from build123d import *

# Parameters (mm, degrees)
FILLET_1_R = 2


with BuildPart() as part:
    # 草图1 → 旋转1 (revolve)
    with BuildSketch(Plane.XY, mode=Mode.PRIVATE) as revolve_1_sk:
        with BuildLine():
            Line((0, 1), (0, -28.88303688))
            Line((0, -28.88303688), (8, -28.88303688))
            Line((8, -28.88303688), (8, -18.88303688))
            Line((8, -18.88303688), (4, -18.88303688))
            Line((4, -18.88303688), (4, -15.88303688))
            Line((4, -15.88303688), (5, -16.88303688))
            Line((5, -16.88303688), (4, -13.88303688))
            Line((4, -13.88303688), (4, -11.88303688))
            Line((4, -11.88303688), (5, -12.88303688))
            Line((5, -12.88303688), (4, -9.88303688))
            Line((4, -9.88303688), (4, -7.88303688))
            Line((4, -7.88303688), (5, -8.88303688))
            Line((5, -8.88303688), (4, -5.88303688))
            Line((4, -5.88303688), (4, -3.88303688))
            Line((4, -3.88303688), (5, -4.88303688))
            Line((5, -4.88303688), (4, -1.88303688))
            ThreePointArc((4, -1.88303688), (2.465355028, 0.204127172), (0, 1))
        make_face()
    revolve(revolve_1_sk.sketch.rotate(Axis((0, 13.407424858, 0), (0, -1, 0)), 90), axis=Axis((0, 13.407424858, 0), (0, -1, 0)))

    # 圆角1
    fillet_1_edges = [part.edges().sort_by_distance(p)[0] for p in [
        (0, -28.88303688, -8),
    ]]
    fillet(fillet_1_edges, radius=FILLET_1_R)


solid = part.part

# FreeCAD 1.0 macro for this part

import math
import FreeCAD as App
import Part
import Sketcher

V = App.Vector
Q = App.Units.Quantity


def edges_at(feature, points):
    """Names of the edges that pass closest to the given points."""
    edges = feature.Shape.Edges
    near = lambda p: min(range(len(edges)), key=lambda i: edges[i].distToShape(Part.Vertex(*p))[0])
    return sorted({f"Edge{near(p) + 1}" for p in points})

doc = App.newDocument("Part")
body = doc.addObject("PartDesign::Body", "Body")

# Sketch on XY plane
sketch1 = body.newObject("Sketcher::SketchObject", "Sketch")
sketch1.AttachmentSupport = (doc.getObject("XY_Plane"), [""])
sketch1.MapMode = "FlatFace"
sketch1.addGeometry(Part.LineSegment(V(0, 1, 0), V(0, -28.883037, 0)), False)
sketch1.addGeometry(Part.LineSegment(V(0, -28.883037, 0), V(8, -28.883037, 0)), False)
sketch1.addGeometry(Part.LineSegment(V(8, -28.883037, 0), V(8, -18.883037, 0)), False)
sketch1.addGeometry(Part.LineSegment(V(8, -18.883037, 0), V(4, -18.883037, 0)), False)
sketch1.addGeometry(Part.LineSegment(V(4, -18.883037, 0), V(4, -15.883037, 0)), False)
sketch1.addGeometry(Part.LineSegment(V(4, -15.883037, 0), V(5, -16.883037, 0)), False)
sketch1.addGeometry(Part.LineSegment(V(5, -16.883037, 0), V(4, -13.883037, 0)), False)
sketch1.addGeometry(Part.LineSegment(V(4, -13.883037, 0), V(4, -11.883037, 0)), False)
sketch1.addGeometry(Part.LineSegment(V(4, -11.883037, 0), V(5, -12.883037, 0)), False)
sketch1.addGeometry(Part.LineSegment(V(5, -12.883037, 0), V(4, -9.883037, 0)), False)
sketch1.addGeometry(Part.LineSegment(V(4, -9.883037, 0), V(4, -7.883037, 0)), False)
sketch1.addGeometry(Part.LineSegment(V(4, -7.883037, 0), V(5, -8.883037, 0)), False)
sketch1.addGeometry(Part.LineSegment(V(5, -8.883037, 0), V(4, -5.883037, 0)), False)
sketch1.addGeometry(Part.LineSegment(V(4, -5.883037, 0), V(4, -3.883037, 0)), False)
sketch1.addGeometry(Part.LineSegment(V(4, -3.883037, 0), V(5, -4.883037, 0)), False)
sketch1.addGeometry(Part.LineSegment(V(5, -4.883037, 0), V(4, -1.883037, 0)), False)
sketch1.addGeometry(Part.ArcOfCircle(Part.Circle(V(0, -3.21637, 0), V(0, 0, 1), 4.21637), math.radians(18.434949), math.radians(90)), False)
sketch1.addConstraint(Sketcher.Constraint("Coincident", 0, 2, 1, 1))
sketch1.addConstraint(Sketcher.Constraint("Coincident", 1, 2, 2, 1))
sketch1.addConstraint(Sketcher.Constraint("Coincident", 2, 2, 3, 1))
sketch1.addConstraint(Sketcher.Constraint("Coincident", 3, 2, 4, 1))
sketch1.addConstraint(Sketcher.Constraint("Coincident", 4, 2, 5, 1))
sketch1.addConstraint(Sketcher.Constraint("Coincident", 5, 2, 6, 1))
sketch1.addConstraint(Sketcher.Constraint("Coincident", 6, 2, 7, 1))
sketch1.addConstraint(Sketcher.Constraint("Coincident", 7, 2, 8, 1))
sketch1.addConstraint(Sketcher.Constraint("Coincident", 8, 2, 9, 1))
sketch1.addConstraint(Sketcher.Constraint("Coincident", 9, 2, 10, 1))
sketch1.addConstraint(Sketcher.Constraint("Coincident", 10, 2, 11, 1))
sketch1.addConstraint(Sketcher.Constraint("Coincident", 11, 2, 12, 1))
sketch1.addConstraint(Sketcher.Constraint("Coincident", 12, 2, 13, 1))
sketch1.addConstraint(Sketcher.Constraint("Coincident", 13, 2, 14, 1))
sketch1.addConstraint(Sketcher.Constraint("Coincident", 14, 2, 15, 1))
sketch1.addConstraint(Sketcher.Constraint("Tangent", 15, 2, 16, 1))
sketch1.addConstraint(Sketcher.Constraint("Coincident", 16, 2, 0, 1))
sketch1.addConstraint(Sketcher.Constraint("Vertical", 0))
sketch1.addConstraint(Sketcher.Constraint("Horizontal", 1))
sketch1.addConstraint(Sketcher.Constraint("Vertical", 2))
sketch1.addConstraint(Sketcher.Constraint("Horizontal", 3))
sketch1.addConstraint(Sketcher.Constraint("Vertical", 4))
sketch1.addConstraint(Sketcher.Constraint("Vertical", 7))
sketch1.addConstraint(Sketcher.Constraint("Vertical", 10))
sketch1.addConstraint(Sketcher.Constraint("Vertical", 13))
sketch1.addConstraint(Sketcher.Constraint("PointOnObject", 16, 3, -2))
sketch1.addConstraint(Sketcher.Constraint("PointOnObject", 0, 2, -2))
sketch1.addConstraint(Sketcher.Constraint("Parallel", 5, 8))
sketch1.addConstraint(Sketcher.Constraint("Parallel", 6, 9))
sketch1.addConstraint(Sketcher.Constraint("Parallel", 8, 11))
sketch1.addConstraint(Sketcher.Constraint("Parallel", 9, 12))
sketch1.addConstraint(Sketcher.Constraint("Parallel", 11, 14))
sketch1.addConstraint(Sketcher.Constraint("Parallel", 12, 15))
sketch1.addConstraint(Sketcher.Constraint("Vertical", 4, 2, 6, 2))
sketch1.addConstraint(Sketcher.Constraint("Vertical", 5, 2, 8, 2))
sketch1.addConstraint(Sketcher.Constraint("Vertical", 7, 2, 9, 2))
sketch1.addConstraint(Sketcher.Constraint("Vertical", 8, 2, 11, 2))
sketch1.addConstraint(Sketcher.Constraint("Vertical", 10, 2, 12, 2))
sketch1.addConstraint(Sketcher.Constraint("Vertical", 11, 2, 14, 2))
sketch1.addConstraint(Sketcher.Constraint("Vertical", 13, 2, 15, 2))
sketch1.addConstraint(Sketcher.Constraint("Equal", 7, 10))
sketch1.addConstraint(Sketcher.Constraint("Equal", 10, 13))
sketch1.addConstraint(Sketcher.Constraint("DistanceX", 1, 1, 1, 2, 8.0))
sketch1.addConstraint(Sketcher.Constraint("DistanceX", 3, 2, 3, 1, 4.0))
sketch1.addConstraint(Sketcher.Constraint("DistanceY", 2, 1, 2, 2, 10.0))
sketch1.addConstraint(Sketcher.Constraint("DistanceY", 4, 1, 4, 2, 3.0))
sketch1.addConstraint(Sketcher.Constraint("DistanceY", 7, 1, 7, 2, 2.0))
sketch1.addConstraint(Sketcher.Constraint("Angle", 5, Q("-45 deg")))
sketch1.addConstraint(Sketcher.Constraint("DistanceX", -1, 1, 5, 2, 5.0))
sketch1.addConstraint(Sketcher.Constraint("DistanceY", -1, 1, 16, 2, 1.0))
sketch1.addConstraint(Sketcher.Constraint("DistanceY", 4, 2, 6, 2, 2.0))
revolution = body.newObject("PartDesign::Revolution", "Revolution")
revolution.Profile = sketch1
revolution.ReferenceAxis = (sketch1, ["V_Axis"])
revolution.Angle = 360
doc.recompute()

fillet = body.newObject("PartDesign::Fillet", "Fillet")
fillet.Base = (revolution, edges_at(revolution, [(0, -28.883, -8)]))
fillet.Radius = 2

doc.recompute()
